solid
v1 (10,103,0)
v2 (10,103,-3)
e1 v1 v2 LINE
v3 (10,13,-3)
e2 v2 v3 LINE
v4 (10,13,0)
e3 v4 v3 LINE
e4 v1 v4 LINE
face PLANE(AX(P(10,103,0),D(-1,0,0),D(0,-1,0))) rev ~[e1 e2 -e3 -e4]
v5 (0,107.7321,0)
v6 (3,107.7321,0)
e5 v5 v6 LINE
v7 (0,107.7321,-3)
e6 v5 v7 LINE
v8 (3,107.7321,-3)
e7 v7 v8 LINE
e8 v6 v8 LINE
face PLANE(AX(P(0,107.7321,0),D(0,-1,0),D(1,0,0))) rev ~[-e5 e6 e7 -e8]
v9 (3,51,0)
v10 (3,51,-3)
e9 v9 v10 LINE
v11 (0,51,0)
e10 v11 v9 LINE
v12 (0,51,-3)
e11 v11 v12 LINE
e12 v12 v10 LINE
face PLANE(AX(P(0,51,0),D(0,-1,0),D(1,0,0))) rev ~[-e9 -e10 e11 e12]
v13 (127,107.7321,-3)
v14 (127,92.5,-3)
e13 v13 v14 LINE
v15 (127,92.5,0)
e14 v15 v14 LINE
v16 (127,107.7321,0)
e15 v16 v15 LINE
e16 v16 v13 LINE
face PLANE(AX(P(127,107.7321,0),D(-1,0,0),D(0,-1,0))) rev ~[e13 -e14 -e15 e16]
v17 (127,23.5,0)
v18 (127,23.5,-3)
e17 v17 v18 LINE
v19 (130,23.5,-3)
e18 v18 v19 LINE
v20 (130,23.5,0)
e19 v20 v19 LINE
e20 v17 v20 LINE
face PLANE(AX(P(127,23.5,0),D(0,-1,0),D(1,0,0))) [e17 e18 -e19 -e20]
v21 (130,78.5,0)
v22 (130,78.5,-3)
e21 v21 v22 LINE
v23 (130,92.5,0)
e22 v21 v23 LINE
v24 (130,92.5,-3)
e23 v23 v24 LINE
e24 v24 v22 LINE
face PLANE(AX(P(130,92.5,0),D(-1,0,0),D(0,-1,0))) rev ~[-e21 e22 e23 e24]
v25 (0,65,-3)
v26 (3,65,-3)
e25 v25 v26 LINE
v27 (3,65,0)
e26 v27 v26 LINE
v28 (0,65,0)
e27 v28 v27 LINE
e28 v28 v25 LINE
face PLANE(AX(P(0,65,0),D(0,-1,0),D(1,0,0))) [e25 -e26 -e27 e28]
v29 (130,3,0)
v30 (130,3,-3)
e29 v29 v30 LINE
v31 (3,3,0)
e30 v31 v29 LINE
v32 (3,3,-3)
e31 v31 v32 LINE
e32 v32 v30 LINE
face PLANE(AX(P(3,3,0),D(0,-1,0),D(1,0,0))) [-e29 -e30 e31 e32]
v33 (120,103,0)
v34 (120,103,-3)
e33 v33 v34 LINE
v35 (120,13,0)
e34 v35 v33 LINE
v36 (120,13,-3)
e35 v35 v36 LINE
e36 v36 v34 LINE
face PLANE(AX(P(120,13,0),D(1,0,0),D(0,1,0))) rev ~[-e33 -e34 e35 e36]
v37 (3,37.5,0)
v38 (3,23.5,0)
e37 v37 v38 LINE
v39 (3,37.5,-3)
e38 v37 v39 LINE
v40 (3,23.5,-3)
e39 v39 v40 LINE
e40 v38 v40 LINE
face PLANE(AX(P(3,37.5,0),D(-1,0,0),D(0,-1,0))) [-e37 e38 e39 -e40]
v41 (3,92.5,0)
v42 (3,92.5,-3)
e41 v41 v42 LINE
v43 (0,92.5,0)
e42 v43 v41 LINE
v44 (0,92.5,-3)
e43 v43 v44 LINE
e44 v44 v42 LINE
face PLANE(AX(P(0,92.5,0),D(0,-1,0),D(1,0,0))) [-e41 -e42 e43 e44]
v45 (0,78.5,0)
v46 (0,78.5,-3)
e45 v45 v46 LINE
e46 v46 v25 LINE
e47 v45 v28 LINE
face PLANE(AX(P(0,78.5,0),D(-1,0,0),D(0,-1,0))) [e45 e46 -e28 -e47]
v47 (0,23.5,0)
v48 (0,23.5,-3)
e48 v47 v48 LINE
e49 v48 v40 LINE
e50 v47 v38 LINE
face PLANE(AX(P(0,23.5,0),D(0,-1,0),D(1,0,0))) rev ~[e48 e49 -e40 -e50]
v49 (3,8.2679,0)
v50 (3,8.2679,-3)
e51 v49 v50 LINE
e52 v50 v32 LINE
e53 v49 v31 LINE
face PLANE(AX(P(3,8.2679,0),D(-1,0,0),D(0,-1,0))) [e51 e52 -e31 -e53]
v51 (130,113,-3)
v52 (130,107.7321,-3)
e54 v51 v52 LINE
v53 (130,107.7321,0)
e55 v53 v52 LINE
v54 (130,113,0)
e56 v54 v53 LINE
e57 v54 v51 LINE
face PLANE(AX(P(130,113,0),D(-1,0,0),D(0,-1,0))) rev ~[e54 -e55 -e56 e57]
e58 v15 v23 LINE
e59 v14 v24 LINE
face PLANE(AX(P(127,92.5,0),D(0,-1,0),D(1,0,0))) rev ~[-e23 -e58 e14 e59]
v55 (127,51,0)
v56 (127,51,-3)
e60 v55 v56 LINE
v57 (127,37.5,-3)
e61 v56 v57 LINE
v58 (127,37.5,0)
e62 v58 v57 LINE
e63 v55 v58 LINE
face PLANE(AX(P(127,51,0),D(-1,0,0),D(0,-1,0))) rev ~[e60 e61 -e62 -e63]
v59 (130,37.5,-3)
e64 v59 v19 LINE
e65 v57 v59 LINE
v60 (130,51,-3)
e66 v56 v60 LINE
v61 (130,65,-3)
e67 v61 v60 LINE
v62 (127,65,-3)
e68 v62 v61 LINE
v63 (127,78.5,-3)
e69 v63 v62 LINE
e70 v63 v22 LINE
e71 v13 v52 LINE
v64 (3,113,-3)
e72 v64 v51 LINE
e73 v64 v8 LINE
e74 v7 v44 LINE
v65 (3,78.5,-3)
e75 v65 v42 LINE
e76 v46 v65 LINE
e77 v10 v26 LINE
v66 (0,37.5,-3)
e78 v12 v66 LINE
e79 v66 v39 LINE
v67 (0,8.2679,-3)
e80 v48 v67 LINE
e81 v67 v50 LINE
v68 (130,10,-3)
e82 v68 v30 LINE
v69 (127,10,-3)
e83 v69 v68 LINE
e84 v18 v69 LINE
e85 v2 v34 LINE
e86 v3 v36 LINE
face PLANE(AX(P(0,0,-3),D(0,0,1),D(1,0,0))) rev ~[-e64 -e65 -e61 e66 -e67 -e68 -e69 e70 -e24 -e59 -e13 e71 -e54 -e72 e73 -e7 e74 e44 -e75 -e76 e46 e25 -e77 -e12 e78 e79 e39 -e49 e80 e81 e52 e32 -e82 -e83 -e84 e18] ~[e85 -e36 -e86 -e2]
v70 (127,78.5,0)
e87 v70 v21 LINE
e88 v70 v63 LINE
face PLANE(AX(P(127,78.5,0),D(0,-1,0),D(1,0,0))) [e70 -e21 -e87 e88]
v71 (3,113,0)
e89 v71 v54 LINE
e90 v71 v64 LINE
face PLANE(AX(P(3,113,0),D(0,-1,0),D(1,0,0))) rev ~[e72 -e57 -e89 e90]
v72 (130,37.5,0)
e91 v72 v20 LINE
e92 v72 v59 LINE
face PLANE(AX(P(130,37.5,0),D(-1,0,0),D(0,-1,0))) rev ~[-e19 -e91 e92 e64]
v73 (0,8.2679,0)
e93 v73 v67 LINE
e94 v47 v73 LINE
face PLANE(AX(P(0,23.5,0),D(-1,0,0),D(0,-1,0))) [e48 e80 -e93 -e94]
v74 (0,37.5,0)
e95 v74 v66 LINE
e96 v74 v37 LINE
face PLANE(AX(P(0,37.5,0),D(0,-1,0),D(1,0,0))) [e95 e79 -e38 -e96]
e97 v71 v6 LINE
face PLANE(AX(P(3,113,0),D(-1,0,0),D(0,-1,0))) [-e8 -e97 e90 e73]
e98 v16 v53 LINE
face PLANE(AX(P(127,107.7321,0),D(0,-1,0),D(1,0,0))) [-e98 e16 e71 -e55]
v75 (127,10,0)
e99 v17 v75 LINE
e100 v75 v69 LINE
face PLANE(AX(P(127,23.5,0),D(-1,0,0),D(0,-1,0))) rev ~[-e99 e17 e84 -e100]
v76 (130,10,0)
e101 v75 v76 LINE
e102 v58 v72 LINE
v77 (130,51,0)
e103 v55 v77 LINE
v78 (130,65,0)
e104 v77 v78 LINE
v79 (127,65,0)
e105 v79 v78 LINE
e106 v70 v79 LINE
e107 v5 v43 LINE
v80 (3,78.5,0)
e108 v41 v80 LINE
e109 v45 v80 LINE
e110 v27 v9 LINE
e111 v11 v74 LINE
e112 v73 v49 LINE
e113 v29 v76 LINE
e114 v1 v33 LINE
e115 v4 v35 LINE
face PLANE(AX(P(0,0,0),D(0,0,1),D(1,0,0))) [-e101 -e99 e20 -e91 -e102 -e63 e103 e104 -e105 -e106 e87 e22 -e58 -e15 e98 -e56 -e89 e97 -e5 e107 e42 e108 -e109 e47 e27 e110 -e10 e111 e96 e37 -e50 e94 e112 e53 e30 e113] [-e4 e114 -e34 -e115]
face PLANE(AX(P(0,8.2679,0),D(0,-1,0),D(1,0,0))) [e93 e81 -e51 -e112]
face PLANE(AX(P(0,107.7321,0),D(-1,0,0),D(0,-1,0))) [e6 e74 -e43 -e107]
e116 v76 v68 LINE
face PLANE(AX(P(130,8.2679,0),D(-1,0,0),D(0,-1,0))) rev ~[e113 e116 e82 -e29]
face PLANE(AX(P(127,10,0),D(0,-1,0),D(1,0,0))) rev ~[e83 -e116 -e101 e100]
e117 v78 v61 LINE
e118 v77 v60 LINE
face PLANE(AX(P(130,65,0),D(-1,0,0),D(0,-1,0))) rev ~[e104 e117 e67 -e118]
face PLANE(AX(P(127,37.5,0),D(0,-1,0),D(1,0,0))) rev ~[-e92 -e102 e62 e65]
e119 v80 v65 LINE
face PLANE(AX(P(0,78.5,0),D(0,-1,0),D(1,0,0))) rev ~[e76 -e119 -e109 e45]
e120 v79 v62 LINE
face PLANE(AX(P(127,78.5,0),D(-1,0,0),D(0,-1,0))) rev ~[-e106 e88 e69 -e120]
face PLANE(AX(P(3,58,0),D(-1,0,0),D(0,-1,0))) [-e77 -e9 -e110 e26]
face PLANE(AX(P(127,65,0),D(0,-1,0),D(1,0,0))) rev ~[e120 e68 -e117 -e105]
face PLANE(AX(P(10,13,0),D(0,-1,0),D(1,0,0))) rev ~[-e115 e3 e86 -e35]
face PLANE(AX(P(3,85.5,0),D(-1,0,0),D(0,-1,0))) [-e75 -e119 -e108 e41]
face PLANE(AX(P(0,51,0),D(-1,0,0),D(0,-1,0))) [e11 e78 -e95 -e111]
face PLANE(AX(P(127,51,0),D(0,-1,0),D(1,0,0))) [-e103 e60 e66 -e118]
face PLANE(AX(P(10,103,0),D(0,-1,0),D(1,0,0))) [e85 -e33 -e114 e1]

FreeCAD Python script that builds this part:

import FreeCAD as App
import Part
import Sketcher

V = App.Vector
Q = App.Units.Quantity


def add_polygon(sketch, points):
    """Adds a closed chain of lines whose ends are joined by coincident constraints."""
    first, n = sketch.GeometryCount, len(points)
    for a, b in zip(points, points[1:] + points[:1]):
        sketch.addGeometry(Part.LineSegment(App.Vector(*a, 0), App.Vector(*b, 0)), False)
    for i in range(n):
        sketch.addConstraint(Sketcher.Constraint("Coincident", first + i, 2, first + (i + 1) % n, 1))

doc = App.newDocument("Part")
body = doc.addObject("PartDesign::Body", "Body")

sketch1 = doc.addObject("Sketcher::SketchObject", "Sketch")
body.addObject(sketch1)
sketch1.AttachmentSupport = (doc.XY_Plane, [""])
sketch1.MapMode = "FlatFace"
add_polygon(sketch1, [(3, 8.3), (3, 3), (130, 3), (130, 10), (127, 10), (127, 23.5), (130, 23.5), (130, 37.5), (127, 37.5), (127, 51), (130, 51), (130, 65), (127, 65), (127, 78.5), (130, 78.5), (130, 92.5), (127, 92.5), (127, 107.7), (130, 107.7), (130, 113), (3, 113), (3, 107.7), (0, 107.7), (0, 92.5), (3, 92.5), (3, 78.5), (0, 78.5), (0, 65), (3, 65), (3, 51), (0, 51), (0, 37.5), (3, 37.5), (3, 23.5), (0, 23.5), (0, 8.3)])
add_polygon(sketch1, [(10, 13), (10, 103), (120, 103), (120, 13)])
sketch1.addConstraint([
    Sketcher.Constraint("Vertical", 0),
    Sketcher.Constraint("Horizontal", 1),
    Sketcher.Constraint("Vertical", 2),
    Sketcher.Constraint("Horizontal", 3),
    Sketcher.Constraint("Vertical", 4),
    Sketcher.Constraint("Horizontal", 5),
    Sketcher.Constraint("Vertical", 6),
    Sketcher.Constraint("Horizontal", 7),
    Sketcher.Constraint("Vertical", 8),
    Sketcher.Constraint("Horizontal", 9),
    Sketcher.Constraint("Vertical", 10),
    Sketcher.Constraint("Horizontal", 11),
    Sketcher.Constraint("Vertical", 12),
    Sketcher.Constraint("Horizontal", 13),
    Sketcher.Constraint("Vertical", 14),
    Sketcher.Constraint("Horizontal", 15),
    Sketcher.Constraint("Vertical", 16),
    Sketcher.Constraint("Horizontal", 17),
    Sketcher.Constraint("Vertical", 18),
    Sketcher.Constraint("Horizontal", 19),
    Sketcher.Constraint("Vertical", 20),
    Sketcher.Constraint("Horizontal", 21),
    Sketcher.Constraint("Vertical", 22),
    Sketcher.Constraint("Horizontal", 23),
    Sketcher.Constraint("Vertical", 24),
    Sketcher.Constraint("Horizontal", 25),
    Sketcher.Constraint("Vertical", 26),
    Sketcher.Constraint("Horizontal", 27),
    Sketcher.Constraint("Vertical", 28),
    Sketcher.Constraint("Horizontal", 29),
    Sketcher.Constraint("Vertical", 30),
    Sketcher.Constraint("Horizontal", 31),
    Sketcher.Constraint("Vertical", 32),
    Sketcher.Constraint("Horizontal", 33),
    Sketcher.Constraint("Vertical", 34),
    Sketcher.Constraint("Horizontal", 35),
    Sketcher.Constraint("Vertical", 36),
    Sketcher.Constraint("Horizontal", 37),
    Sketcher.Constraint("Vertical", 38),
    Sketcher.Constraint("Horizontal", 39),
    Sketcher.Constraint("PointOnObject", 21, 2, -2),
    Sketcher.Constraint("PointOnObject", 25, 2, -2),
    Sketcher.Constraint("PointOnObject", 29, 2, -2),
    Sketcher.Constraint("PointOnObject", 33, 2, -2),
    Sketcher.Constraint("Horizontal", 17, 2, 20, 2),
    Sketcher.Constraint("Horizontal", 15, 2, 22, 2),
    Sketcher.Constraint("Horizontal", 13, 2, 24, 2),
    Sketcher.Constraint("Horizontal", 11, 2, 26, 2),
    Sketcher.Constraint("Horizontal", 9, 2, 28, 2),
    Sketcher.Constraint("Horizontal", 7, 2, 30, 2),
    Sketcher.Constraint("Horizontal", 5, 2, 32, 2),
    Sketcher.Constraint("Vertical", 2, 2, 5, 2),
    Sketcher.Constraint("Vertical", 4, 2, 7, 2),
    Sketcher.Constraint("Vertical", 6, 2, 9, 2),
    Sketcher.Constraint("Vertical", 8, 2, 11, 2),
    Sketcher.Constraint("Vertical", 10, 2, 13, 2),
    Sketcher.Constraint("Vertical", 12, 2, 15, 2),
    Sketcher.Constraint("Vertical", 14, 2, 17, 2),
    Sketcher.Constraint("Vertical", 0, 2, 19, 2),
    Sketcher.Constraint("Vertical", 20, 2, 23, 2),
    Sketcher.Constraint("Vertical", 24, 2, 27, 2),
    Sketcher.Constraint("Vertical", 28, 2, 31, 2),
    Sketcher.Constraint("Equal", 17, 21),
    Sketcher.Constraint("Equal", 4, 8),
    Sketcher.Constraint("Equal", 6, 10),
    Sketcher.Constraint("Equal", 8, 12),
    Sketcher.Constraint("Equal", 10, 14),
    Sketcher.Constraint("Equal", 0, 18),
    Sketcher.Constraint("Equal", 22, 34),
    Sketcher.Constraint("DistanceX", 3, 2, 3, 1, Q("3 mm")),
    Sketcher.Constraint("DistanceX", 37, 1, 37, 2, Q("110 mm")),
    Sketcher.Constraint("DistanceY", 2, 1, 2, 2, Q("7 mm")),
    Sketcher.Constraint("DistanceY", -1, 1, 0, 2, Q("3 mm")),
    Sketcher.Constraint("DistanceX", -1, 1, 1, 2, Q("130 mm")),
    Sketcher.Constraint("DistanceY", 0, 2, 19, 2, Q("110 mm")),
    Sketcher.Constraint("DistanceX", 20, 2, 36, 2, Q("7 mm")),
    Sketcher.Constraint("DistanceY", 3, 2, 38, 2, Q("3 mm")),
    Sketcher.Constraint("DistanceY", 6, 1, 6, 2, Q("14 mm")),
    Sketcher.Constraint("DistanceY", 36, 1, 36, 2, Q("90 mm")),
    Sketcher.Constraint("DistanceY", 0, 2, 0, 1, Q("5.268 mm")),
])
pad1 = doc.addObject("PartDesign::Pad", "Pad")
body.addObject(pad1)
pad1.Profile = sketch1
pad1.Length = 3
pad1.Reversed = True

doc.recompute()
